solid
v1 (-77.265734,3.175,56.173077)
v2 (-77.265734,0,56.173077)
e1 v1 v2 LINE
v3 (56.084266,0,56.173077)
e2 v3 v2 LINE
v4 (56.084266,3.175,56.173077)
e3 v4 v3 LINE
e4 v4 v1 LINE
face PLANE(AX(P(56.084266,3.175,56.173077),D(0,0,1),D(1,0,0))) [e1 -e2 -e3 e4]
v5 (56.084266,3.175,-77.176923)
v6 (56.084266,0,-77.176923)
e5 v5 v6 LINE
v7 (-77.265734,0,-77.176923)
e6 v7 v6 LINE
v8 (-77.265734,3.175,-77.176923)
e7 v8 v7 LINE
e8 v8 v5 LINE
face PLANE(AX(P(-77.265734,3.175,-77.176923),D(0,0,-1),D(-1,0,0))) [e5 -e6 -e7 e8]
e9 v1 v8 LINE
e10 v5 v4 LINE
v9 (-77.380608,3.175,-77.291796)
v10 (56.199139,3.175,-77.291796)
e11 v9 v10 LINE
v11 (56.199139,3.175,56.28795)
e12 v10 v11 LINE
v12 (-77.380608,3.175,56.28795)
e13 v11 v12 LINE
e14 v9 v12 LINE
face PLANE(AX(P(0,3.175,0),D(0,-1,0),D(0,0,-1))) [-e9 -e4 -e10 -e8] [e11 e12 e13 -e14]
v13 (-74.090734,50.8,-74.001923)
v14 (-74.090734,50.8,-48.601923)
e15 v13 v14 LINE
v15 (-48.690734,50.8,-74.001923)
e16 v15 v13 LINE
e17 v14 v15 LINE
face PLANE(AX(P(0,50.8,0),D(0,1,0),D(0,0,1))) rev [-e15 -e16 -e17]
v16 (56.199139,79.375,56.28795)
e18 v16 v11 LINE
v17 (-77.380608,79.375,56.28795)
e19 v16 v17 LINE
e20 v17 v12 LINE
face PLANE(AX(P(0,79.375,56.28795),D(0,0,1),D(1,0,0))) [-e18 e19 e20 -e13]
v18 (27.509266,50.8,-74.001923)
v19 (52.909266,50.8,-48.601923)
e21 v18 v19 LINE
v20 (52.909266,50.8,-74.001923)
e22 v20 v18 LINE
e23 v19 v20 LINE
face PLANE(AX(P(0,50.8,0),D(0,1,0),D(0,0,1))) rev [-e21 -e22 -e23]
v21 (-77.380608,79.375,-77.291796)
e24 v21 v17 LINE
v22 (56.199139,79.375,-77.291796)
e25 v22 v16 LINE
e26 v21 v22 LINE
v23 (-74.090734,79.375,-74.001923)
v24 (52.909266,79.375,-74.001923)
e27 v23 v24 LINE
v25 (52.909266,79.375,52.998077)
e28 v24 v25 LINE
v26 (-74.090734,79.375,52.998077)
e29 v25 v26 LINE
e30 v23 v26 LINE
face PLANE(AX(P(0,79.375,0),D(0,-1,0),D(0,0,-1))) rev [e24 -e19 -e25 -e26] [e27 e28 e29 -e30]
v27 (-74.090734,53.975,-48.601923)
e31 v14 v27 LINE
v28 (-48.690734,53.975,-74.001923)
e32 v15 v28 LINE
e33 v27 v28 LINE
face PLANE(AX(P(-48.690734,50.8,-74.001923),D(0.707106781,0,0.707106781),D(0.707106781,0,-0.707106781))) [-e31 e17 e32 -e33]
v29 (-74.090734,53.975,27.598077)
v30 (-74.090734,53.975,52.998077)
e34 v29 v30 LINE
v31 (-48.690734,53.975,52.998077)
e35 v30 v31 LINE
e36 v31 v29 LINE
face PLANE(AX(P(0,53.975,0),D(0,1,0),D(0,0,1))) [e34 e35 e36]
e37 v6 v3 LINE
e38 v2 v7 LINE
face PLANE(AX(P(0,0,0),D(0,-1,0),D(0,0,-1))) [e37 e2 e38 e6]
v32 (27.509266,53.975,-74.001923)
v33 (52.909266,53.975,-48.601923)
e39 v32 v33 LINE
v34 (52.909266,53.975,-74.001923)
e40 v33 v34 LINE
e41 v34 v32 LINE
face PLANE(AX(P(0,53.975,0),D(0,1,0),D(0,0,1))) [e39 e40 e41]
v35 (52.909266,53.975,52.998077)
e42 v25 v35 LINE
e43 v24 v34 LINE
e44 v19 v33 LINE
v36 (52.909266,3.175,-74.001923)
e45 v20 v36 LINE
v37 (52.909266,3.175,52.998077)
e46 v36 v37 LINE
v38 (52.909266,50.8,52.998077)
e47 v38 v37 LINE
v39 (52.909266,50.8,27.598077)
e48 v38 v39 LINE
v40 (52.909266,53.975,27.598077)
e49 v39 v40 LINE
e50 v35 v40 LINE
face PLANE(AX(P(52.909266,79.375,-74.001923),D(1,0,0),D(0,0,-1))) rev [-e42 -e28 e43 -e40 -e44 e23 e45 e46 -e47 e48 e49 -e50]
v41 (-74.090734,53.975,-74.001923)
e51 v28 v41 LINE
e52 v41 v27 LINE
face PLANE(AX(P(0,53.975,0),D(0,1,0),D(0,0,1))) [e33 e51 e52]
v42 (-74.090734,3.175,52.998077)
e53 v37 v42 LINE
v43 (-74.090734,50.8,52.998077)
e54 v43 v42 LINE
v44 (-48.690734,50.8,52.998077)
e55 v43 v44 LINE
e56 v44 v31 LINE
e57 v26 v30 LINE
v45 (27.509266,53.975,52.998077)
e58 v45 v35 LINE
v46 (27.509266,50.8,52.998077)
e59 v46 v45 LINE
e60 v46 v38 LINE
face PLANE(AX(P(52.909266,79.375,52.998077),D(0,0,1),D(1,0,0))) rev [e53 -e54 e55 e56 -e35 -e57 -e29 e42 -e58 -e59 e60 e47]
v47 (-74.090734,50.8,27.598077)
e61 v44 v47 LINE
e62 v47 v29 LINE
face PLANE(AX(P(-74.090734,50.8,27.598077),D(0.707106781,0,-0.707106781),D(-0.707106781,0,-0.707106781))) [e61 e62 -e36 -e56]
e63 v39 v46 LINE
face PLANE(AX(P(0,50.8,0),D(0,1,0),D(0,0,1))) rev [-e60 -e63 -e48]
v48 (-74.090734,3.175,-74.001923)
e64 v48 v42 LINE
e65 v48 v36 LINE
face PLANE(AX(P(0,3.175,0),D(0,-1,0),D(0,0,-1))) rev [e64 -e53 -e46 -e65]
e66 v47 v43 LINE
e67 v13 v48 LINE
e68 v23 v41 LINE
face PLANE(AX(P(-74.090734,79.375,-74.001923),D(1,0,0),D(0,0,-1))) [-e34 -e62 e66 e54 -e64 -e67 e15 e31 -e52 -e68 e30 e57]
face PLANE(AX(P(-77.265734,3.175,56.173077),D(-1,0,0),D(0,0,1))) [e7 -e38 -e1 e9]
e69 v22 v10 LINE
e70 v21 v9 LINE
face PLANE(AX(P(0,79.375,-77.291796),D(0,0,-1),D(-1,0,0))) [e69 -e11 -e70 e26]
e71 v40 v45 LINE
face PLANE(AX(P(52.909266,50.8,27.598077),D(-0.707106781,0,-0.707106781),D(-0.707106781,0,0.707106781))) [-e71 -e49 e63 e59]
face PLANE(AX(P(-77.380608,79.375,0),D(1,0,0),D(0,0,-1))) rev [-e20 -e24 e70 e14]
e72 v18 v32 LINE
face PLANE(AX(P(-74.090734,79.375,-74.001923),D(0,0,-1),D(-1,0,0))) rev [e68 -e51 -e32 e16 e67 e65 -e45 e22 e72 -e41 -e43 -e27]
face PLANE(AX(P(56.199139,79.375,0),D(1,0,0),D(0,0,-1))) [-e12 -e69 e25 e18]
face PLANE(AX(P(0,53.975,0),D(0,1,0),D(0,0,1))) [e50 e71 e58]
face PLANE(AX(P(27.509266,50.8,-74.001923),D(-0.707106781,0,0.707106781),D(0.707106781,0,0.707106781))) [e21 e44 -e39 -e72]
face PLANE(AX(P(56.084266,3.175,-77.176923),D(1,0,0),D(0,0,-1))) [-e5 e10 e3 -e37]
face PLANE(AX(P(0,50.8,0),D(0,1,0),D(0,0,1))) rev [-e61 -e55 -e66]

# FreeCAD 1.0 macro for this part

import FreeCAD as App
import Part
import Sketcher
Q = App.Units.Quantity


def add_polygon(sketch, points):
    """Adds a closed chain of lines whose ends are joined by coincident constraints."""
    first, n = sketch.GeometryCount, len(points)
    for a, b in zip(points, points[1:] + points[:1]):
        sketch.addGeometry(Part.LineSegment(App.Vector(*a, 0), App.Vector(*b, 0)), False)
    for i in range(n):
        sketch.addConstraint(Sketcher.Constraint("Coincident", first + i, 2, first + (i + 1) % n, 1))

doc = App.newDocument("Part")
body = doc.addObject("PartDesign::Body", "Body")

sketch1 = body.newObject("Sketcher::SketchObject", "Sketch")
sketch1.AttachmentSupport = (doc.getObject("XZ_Plane"), [""])
sketch1.MapMode = "FlatFace"
add_polygon(sketch1, [(-77, -77), (-77, 56), (56, 56), (56, -77)])
sketch1.addConstraint([
    Sketcher.Constraint("Vertical", 0),
    Sketcher.Constraint("Horizontal", 1),
    Sketcher.Constraint("Vertical", 2),
    Sketcher.Constraint("Horizontal", 3),
    Sketcher.Constraint("Equal", 3, 0),
    Sketcher.Constraint("DistanceX", 1, 1, 1, 2, Q("5.25 in")),
    Sketcher.Constraint("DistanceX", 0, 2, -1, 1, Q("77.265734 mm")),
    Sketcher.Constraint("DistanceY", -1, 1, 0, 2, Q("56.173077 mm")),
])
pad1 = body.newObject("PartDesign::Pad", "Pad")
pad1.Profile = sketch1
pad1.Length = Q("0.125 in")
pad1.Reversed = True

sketch2 = body.newObject("Sketcher::SketchObject", "Sketch001")
sketch2.AttachmentSupport = (doc.getObject("XZ_Plane"), [""])
sketch2.MapMode = "FlatFace"
sketch2.AttachmentOffset = App.Placement(App.Vector(0, 0, -0.125 * 25.4), App.Rotation())
add_polygon(sketch2, [(-77, -77), (-77, 56), (56, 56), (56, -77)])
add_polygon(sketch2, [(53, 53), (-74, 53), (-74, -74), (53, -74)])
sketch2.addConstraint([
    Sketcher.Constraint("Vertical", 0),
    Sketcher.Constraint("Horizontal", 1),
    Sketcher.Constraint("Vertical", 2),
    Sketcher.Constraint("Horizontal", 3),
    Sketcher.Constraint("Horizontal", 4),
    Sketcher.Constraint("Vertical", 5),
    Sketcher.Constraint("Horizontal", 6),
    Sketcher.Constraint("Vertical", 7),
    Sketcher.Constraint("Equal", 3, 0),
    Sketcher.Constraint("Equal", 6, 5),
    Sketcher.Constraint("DistanceX", 4, 2, 4, 1, Q("5 in")),
    Sketcher.Constraint("DistanceX", 1, 1, 1, 2, Q("133.579747 mm")),
    Sketcher.Constraint("DistanceY", -1, 1, 0, 2, Q("56.28795 mm")),
    Sketcher.Constraint("DistanceX", -1, 1, 1, 2, Q("56.199139 mm")),
    Sketcher.Constraint("DistanceX", 4, 2, -1, 1, Q("74.090734 mm")),
    Sketcher.Constraint("DistanceY", -1, 1, 4, 2, Q("52.998077 mm")),
])
pad2 = body.newObject("PartDesign::Pad", "Pad001")
pad2.Profile = sketch2
pad2.Length = Q("3 in")
pad2.Reversed = True

sketch3 = body.newObject("Sketcher::SketchObject", "Sketch002")
sketch3.AttachmentSupport = (doc.getObject("XZ_Plane"), [""])
sketch3.MapMode = "FlatFace"
sketch3.AttachmentOffset = App.Placement(App.Vector(0, 0, -2.125 * 25.4), App.Rotation())
add_polygon(sketch3, [(-74, -49), (-49, -74), (-74, -74)])
add_polygon(sketch3, [(-74, 28), (-74, 53), (-49, 53)])
add_polygon(sketch3, [(53, -74), (28, -74), (53, -49)])
add_polygon(sketch3, [(53, 53), (53, 28), (28, 53)])
sketch3.addConstraint([
    Sketcher.Constraint("Horizontal", 1),
    Sketcher.Constraint("Vertical", 2),
    Sketcher.Constraint("Vertical", 3),
    Sketcher.Constraint("Horizontal", 4),
    Sketcher.Constraint("Horizontal", 6),
    Sketcher.Constraint("Vertical", 8),
    Sketcher.Constraint("Vertical", 9),
    Sketcher.Constraint("Horizontal", 11),
    Sketcher.Constraint("Perpendicular", 0, 5),
    Sketcher.Constraint("Parallel", 5, 7),
    Sketcher.Constraint("Perpendicular", 7, 10),
    Sketcher.Constraint("Horizontal", 1, 2, 6, 2),
    Sketcher.Constraint("Horizontal", 2, 2, 7, 2),
    Sketcher.Constraint("Horizontal", 5, 2, 9, 2),
    Sketcher.Constraint("Horizontal", 4, 2, 10, 2),
    Sketcher.Constraint("Vertical", 2, 2, 3, 2),
    Sketcher.Constraint("Vertical", 0, 2, 4, 2),
    Sketcher.Constraint("Vertical", 8, 2, 9, 2),
    Sketcher.Constraint("Vertical", 6, 2, 10, 2),
    Sketcher.Constraint("DistanceX", 1, 2, 1, 1, Q("1 in")),
    Sketcher.Constraint("DistanceY", 2, 2, 3, 2, Q("4 in")),
    Sketcher.Constraint("DistanceX", 0, 2, 6, 2, Q("3 in")),
    Sketcher.Constraint("DistanceX", 0, 2, -1, 1, Q("48.690734 mm")),
    Sketcher.Constraint("DistanceY", 0, 2, -1, 1, Q("74.001923 mm")),
])
pad3 = body.newObject("PartDesign::Pad", "Pad002")
pad3.Profile = sketch3
pad3.Length = Q("0.125 in")

doc.recompute()
